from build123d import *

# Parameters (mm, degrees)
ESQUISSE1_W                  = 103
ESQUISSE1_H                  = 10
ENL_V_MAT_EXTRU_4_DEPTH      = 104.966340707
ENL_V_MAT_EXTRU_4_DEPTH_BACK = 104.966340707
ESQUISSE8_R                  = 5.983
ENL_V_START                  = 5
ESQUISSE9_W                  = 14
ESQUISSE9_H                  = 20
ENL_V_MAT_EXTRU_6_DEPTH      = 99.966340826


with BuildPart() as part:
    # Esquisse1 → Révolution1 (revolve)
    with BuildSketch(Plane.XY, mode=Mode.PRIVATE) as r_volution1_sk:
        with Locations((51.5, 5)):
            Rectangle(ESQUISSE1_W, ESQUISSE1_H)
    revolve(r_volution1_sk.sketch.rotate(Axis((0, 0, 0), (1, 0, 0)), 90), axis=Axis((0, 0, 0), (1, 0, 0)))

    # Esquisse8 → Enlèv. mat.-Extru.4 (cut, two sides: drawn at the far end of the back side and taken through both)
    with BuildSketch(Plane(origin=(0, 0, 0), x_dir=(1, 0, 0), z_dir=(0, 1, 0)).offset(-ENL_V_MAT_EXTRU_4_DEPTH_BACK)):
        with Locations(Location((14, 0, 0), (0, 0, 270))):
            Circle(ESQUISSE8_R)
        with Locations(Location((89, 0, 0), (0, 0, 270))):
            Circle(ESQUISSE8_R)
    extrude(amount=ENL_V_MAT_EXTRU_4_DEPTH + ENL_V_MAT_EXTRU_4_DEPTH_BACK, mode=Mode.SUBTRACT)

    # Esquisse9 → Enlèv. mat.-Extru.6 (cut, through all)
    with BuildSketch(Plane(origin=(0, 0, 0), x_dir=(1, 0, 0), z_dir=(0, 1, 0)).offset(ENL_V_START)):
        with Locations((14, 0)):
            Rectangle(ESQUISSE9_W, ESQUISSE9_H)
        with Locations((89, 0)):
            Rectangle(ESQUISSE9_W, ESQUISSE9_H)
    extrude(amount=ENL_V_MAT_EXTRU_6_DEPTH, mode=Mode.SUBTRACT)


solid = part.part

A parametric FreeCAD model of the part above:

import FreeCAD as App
import Part
import Sketcher

V = App.Vector


def add_polygon(sketch, points):
    """Adds a closed chain of lines whose ends are joined by coincident constraints."""
    first, n = sketch.GeometryCount, len(points)
    for a, b in zip(points, points[1:] + points[:1]):
        sketch.addGeometry(Part.LineSegment(App.Vector(*a, 0), App.Vector(*b, 0)), False)
    for i in range(n):
        sketch.addConstraint(Sketcher.Constraint("Coincident", first + i, 2, first + (i + 1) % n, 1))

doc = App.newDocument("Part")
body = doc.addObject("PartDesign::Body", "Body")

sketch1 = body.newObject("Sketcher::SketchObject", "Sketch")
sketch1.AttachmentSupport = (doc.getObject("XY_Plane"), [""])
sketch1.MapMode = "FlatFace"
add_polygon(sketch1, [(0, 10), (0, 0), (103, 0), (103, 10)])
sketch1.addConstraint(Sketcher.Constraint("Vertical", 0))
sketch1.addConstraint(Sketcher.Constraint("Horizontal", 1))
sketch1.addConstraint(Sketcher.Constraint("Vertical", 2))
sketch1.addConstraint(Sketcher.Constraint("Horizontal", 3))
sketch1.addConstraint(Sketcher.Constraint("Coincident", 0, 2, -1, 1))
sketch1.addConstraint(Sketcher.Constraint("DistanceX", 1, 1, 1, 2, 103.0))
sketch1.addConstraint(Sketcher.Constraint("DistanceY", 0, 2, 0, 1, 10.0))
revolution = body.newObject("PartDesign::Revolution", "Revolution")
revolution.Profile = sketch1
revolution.ReferenceAxis = (sketch1, ["H_Axis"])
revolution.Angle = 360

sketch2 = body.newObject("Sketcher::SketchObject", "Sketch001")
sketch2.AttachmentSupport = (doc.getObject("XZ_Plane"), [""])
sketch2.MapMode = "FlatFace"
sketch2.addGeometry(Part.Circle(V(14, 0, 0), V(0, 0, 1), 6), False)
sketch2.addGeometry(Part.Circle(V(89, 0, 0), V(0, 0, 1), 6), False)
sketch2.addConstraint(Sketcher.Constraint("Equal", 0, 1))
sketch2.addConstraint(Sketcher.Constraint("PointOnObject", 0, 3, -1))
sketch2.addConstraint(Sketcher.Constraint("PointOnObject", 1, 3, -1))
sketch2.addConstraint(Sketcher.Constraint("Diameter", 0, 11.966))
sketch2.addConstraint(Sketcher.Constraint("DistanceX", -1, 1, 0, 3, 14.0))
sketch2.addConstraint(Sketcher.Constraint("DistanceX", -1, 1, 1, 3, 89.0))
pocket1 = body.newObject("PartDesign::Pocket", "Pocket")
pocket1.Profile = sketch2
pocket1.Type = "ThroughAll"
pocket1.Midplane = True

sketch3 = body.newObject("Sketcher::SketchObject", "Sketch002")
sketch3.AttachmentSupport = (doc.getObject("XZ_Plane"), [""])
sketch3.MapMode = "FlatFace"
sketch3.AttachmentOffset = App.Placement(V(0, 0, -5), App.Rotation())
add_polygon(sketch3, [(7, -10), (7, 10), (21, 10), (21, -10)])
add_polygon(sketch3, [(82, -10), (82, 10), (96, 10), (96, -10)])
sketch3.addConstraint(Sketcher.Constraint("Vertical", 0))
sketch3.addConstraint(Sketcher.Constraint("Horizontal", 1))
sketch3.addConstraint(Sketcher.Constraint("Vertical", 2))
sketch3.addConstraint(Sketcher.Constraint("Horizontal", 3))
sketch3.addConstraint(Sketcher.Constraint("Vertical", 4))
sketch3.addConstraint(Sketcher.Constraint("Horizontal", 5))
sketch3.addConstraint(Sketcher.Constraint("Vertical", 6))
sketch3.addConstraint(Sketcher.Constraint("Horizontal", 7))
sketch3.addConstraint(Sketcher.Constraint("Horizontal", 1, 2, 4, 2))
sketch3.addConstraint(Sketcher.Constraint("Horizontal", 3, 2, 6, 2))
sketch3.addConstraint(Sketcher.Constraint("Equal", 3, 5))
sketch3.addConstraint(Sketcher.Constraint("DistanceX", 1, 1, 1, 2, 14.0))
sketch3.addConstraint(Sketcher.Constraint("DistanceY", 0, 1, 0, 2, 20.0))
sketch3.addConstraint(Sketcher.Constraint("DistanceX", -1, 1, 0, 2, 7.0))
sketch3.addConstraint(Sketcher.Constraint("DistanceY", -1, 1, 0, 2, 10.0))
sketch3.addConstraint(Sketcher.Constraint("DistanceX", -1, 1, 4, 2, 82.0))
pocket2 = body.newObject("PartDesign::Pocket", "Pocket001")
pocket2.Profile = sketch3
pocket2.Type = "ThroughAll"

doc.recompute()
